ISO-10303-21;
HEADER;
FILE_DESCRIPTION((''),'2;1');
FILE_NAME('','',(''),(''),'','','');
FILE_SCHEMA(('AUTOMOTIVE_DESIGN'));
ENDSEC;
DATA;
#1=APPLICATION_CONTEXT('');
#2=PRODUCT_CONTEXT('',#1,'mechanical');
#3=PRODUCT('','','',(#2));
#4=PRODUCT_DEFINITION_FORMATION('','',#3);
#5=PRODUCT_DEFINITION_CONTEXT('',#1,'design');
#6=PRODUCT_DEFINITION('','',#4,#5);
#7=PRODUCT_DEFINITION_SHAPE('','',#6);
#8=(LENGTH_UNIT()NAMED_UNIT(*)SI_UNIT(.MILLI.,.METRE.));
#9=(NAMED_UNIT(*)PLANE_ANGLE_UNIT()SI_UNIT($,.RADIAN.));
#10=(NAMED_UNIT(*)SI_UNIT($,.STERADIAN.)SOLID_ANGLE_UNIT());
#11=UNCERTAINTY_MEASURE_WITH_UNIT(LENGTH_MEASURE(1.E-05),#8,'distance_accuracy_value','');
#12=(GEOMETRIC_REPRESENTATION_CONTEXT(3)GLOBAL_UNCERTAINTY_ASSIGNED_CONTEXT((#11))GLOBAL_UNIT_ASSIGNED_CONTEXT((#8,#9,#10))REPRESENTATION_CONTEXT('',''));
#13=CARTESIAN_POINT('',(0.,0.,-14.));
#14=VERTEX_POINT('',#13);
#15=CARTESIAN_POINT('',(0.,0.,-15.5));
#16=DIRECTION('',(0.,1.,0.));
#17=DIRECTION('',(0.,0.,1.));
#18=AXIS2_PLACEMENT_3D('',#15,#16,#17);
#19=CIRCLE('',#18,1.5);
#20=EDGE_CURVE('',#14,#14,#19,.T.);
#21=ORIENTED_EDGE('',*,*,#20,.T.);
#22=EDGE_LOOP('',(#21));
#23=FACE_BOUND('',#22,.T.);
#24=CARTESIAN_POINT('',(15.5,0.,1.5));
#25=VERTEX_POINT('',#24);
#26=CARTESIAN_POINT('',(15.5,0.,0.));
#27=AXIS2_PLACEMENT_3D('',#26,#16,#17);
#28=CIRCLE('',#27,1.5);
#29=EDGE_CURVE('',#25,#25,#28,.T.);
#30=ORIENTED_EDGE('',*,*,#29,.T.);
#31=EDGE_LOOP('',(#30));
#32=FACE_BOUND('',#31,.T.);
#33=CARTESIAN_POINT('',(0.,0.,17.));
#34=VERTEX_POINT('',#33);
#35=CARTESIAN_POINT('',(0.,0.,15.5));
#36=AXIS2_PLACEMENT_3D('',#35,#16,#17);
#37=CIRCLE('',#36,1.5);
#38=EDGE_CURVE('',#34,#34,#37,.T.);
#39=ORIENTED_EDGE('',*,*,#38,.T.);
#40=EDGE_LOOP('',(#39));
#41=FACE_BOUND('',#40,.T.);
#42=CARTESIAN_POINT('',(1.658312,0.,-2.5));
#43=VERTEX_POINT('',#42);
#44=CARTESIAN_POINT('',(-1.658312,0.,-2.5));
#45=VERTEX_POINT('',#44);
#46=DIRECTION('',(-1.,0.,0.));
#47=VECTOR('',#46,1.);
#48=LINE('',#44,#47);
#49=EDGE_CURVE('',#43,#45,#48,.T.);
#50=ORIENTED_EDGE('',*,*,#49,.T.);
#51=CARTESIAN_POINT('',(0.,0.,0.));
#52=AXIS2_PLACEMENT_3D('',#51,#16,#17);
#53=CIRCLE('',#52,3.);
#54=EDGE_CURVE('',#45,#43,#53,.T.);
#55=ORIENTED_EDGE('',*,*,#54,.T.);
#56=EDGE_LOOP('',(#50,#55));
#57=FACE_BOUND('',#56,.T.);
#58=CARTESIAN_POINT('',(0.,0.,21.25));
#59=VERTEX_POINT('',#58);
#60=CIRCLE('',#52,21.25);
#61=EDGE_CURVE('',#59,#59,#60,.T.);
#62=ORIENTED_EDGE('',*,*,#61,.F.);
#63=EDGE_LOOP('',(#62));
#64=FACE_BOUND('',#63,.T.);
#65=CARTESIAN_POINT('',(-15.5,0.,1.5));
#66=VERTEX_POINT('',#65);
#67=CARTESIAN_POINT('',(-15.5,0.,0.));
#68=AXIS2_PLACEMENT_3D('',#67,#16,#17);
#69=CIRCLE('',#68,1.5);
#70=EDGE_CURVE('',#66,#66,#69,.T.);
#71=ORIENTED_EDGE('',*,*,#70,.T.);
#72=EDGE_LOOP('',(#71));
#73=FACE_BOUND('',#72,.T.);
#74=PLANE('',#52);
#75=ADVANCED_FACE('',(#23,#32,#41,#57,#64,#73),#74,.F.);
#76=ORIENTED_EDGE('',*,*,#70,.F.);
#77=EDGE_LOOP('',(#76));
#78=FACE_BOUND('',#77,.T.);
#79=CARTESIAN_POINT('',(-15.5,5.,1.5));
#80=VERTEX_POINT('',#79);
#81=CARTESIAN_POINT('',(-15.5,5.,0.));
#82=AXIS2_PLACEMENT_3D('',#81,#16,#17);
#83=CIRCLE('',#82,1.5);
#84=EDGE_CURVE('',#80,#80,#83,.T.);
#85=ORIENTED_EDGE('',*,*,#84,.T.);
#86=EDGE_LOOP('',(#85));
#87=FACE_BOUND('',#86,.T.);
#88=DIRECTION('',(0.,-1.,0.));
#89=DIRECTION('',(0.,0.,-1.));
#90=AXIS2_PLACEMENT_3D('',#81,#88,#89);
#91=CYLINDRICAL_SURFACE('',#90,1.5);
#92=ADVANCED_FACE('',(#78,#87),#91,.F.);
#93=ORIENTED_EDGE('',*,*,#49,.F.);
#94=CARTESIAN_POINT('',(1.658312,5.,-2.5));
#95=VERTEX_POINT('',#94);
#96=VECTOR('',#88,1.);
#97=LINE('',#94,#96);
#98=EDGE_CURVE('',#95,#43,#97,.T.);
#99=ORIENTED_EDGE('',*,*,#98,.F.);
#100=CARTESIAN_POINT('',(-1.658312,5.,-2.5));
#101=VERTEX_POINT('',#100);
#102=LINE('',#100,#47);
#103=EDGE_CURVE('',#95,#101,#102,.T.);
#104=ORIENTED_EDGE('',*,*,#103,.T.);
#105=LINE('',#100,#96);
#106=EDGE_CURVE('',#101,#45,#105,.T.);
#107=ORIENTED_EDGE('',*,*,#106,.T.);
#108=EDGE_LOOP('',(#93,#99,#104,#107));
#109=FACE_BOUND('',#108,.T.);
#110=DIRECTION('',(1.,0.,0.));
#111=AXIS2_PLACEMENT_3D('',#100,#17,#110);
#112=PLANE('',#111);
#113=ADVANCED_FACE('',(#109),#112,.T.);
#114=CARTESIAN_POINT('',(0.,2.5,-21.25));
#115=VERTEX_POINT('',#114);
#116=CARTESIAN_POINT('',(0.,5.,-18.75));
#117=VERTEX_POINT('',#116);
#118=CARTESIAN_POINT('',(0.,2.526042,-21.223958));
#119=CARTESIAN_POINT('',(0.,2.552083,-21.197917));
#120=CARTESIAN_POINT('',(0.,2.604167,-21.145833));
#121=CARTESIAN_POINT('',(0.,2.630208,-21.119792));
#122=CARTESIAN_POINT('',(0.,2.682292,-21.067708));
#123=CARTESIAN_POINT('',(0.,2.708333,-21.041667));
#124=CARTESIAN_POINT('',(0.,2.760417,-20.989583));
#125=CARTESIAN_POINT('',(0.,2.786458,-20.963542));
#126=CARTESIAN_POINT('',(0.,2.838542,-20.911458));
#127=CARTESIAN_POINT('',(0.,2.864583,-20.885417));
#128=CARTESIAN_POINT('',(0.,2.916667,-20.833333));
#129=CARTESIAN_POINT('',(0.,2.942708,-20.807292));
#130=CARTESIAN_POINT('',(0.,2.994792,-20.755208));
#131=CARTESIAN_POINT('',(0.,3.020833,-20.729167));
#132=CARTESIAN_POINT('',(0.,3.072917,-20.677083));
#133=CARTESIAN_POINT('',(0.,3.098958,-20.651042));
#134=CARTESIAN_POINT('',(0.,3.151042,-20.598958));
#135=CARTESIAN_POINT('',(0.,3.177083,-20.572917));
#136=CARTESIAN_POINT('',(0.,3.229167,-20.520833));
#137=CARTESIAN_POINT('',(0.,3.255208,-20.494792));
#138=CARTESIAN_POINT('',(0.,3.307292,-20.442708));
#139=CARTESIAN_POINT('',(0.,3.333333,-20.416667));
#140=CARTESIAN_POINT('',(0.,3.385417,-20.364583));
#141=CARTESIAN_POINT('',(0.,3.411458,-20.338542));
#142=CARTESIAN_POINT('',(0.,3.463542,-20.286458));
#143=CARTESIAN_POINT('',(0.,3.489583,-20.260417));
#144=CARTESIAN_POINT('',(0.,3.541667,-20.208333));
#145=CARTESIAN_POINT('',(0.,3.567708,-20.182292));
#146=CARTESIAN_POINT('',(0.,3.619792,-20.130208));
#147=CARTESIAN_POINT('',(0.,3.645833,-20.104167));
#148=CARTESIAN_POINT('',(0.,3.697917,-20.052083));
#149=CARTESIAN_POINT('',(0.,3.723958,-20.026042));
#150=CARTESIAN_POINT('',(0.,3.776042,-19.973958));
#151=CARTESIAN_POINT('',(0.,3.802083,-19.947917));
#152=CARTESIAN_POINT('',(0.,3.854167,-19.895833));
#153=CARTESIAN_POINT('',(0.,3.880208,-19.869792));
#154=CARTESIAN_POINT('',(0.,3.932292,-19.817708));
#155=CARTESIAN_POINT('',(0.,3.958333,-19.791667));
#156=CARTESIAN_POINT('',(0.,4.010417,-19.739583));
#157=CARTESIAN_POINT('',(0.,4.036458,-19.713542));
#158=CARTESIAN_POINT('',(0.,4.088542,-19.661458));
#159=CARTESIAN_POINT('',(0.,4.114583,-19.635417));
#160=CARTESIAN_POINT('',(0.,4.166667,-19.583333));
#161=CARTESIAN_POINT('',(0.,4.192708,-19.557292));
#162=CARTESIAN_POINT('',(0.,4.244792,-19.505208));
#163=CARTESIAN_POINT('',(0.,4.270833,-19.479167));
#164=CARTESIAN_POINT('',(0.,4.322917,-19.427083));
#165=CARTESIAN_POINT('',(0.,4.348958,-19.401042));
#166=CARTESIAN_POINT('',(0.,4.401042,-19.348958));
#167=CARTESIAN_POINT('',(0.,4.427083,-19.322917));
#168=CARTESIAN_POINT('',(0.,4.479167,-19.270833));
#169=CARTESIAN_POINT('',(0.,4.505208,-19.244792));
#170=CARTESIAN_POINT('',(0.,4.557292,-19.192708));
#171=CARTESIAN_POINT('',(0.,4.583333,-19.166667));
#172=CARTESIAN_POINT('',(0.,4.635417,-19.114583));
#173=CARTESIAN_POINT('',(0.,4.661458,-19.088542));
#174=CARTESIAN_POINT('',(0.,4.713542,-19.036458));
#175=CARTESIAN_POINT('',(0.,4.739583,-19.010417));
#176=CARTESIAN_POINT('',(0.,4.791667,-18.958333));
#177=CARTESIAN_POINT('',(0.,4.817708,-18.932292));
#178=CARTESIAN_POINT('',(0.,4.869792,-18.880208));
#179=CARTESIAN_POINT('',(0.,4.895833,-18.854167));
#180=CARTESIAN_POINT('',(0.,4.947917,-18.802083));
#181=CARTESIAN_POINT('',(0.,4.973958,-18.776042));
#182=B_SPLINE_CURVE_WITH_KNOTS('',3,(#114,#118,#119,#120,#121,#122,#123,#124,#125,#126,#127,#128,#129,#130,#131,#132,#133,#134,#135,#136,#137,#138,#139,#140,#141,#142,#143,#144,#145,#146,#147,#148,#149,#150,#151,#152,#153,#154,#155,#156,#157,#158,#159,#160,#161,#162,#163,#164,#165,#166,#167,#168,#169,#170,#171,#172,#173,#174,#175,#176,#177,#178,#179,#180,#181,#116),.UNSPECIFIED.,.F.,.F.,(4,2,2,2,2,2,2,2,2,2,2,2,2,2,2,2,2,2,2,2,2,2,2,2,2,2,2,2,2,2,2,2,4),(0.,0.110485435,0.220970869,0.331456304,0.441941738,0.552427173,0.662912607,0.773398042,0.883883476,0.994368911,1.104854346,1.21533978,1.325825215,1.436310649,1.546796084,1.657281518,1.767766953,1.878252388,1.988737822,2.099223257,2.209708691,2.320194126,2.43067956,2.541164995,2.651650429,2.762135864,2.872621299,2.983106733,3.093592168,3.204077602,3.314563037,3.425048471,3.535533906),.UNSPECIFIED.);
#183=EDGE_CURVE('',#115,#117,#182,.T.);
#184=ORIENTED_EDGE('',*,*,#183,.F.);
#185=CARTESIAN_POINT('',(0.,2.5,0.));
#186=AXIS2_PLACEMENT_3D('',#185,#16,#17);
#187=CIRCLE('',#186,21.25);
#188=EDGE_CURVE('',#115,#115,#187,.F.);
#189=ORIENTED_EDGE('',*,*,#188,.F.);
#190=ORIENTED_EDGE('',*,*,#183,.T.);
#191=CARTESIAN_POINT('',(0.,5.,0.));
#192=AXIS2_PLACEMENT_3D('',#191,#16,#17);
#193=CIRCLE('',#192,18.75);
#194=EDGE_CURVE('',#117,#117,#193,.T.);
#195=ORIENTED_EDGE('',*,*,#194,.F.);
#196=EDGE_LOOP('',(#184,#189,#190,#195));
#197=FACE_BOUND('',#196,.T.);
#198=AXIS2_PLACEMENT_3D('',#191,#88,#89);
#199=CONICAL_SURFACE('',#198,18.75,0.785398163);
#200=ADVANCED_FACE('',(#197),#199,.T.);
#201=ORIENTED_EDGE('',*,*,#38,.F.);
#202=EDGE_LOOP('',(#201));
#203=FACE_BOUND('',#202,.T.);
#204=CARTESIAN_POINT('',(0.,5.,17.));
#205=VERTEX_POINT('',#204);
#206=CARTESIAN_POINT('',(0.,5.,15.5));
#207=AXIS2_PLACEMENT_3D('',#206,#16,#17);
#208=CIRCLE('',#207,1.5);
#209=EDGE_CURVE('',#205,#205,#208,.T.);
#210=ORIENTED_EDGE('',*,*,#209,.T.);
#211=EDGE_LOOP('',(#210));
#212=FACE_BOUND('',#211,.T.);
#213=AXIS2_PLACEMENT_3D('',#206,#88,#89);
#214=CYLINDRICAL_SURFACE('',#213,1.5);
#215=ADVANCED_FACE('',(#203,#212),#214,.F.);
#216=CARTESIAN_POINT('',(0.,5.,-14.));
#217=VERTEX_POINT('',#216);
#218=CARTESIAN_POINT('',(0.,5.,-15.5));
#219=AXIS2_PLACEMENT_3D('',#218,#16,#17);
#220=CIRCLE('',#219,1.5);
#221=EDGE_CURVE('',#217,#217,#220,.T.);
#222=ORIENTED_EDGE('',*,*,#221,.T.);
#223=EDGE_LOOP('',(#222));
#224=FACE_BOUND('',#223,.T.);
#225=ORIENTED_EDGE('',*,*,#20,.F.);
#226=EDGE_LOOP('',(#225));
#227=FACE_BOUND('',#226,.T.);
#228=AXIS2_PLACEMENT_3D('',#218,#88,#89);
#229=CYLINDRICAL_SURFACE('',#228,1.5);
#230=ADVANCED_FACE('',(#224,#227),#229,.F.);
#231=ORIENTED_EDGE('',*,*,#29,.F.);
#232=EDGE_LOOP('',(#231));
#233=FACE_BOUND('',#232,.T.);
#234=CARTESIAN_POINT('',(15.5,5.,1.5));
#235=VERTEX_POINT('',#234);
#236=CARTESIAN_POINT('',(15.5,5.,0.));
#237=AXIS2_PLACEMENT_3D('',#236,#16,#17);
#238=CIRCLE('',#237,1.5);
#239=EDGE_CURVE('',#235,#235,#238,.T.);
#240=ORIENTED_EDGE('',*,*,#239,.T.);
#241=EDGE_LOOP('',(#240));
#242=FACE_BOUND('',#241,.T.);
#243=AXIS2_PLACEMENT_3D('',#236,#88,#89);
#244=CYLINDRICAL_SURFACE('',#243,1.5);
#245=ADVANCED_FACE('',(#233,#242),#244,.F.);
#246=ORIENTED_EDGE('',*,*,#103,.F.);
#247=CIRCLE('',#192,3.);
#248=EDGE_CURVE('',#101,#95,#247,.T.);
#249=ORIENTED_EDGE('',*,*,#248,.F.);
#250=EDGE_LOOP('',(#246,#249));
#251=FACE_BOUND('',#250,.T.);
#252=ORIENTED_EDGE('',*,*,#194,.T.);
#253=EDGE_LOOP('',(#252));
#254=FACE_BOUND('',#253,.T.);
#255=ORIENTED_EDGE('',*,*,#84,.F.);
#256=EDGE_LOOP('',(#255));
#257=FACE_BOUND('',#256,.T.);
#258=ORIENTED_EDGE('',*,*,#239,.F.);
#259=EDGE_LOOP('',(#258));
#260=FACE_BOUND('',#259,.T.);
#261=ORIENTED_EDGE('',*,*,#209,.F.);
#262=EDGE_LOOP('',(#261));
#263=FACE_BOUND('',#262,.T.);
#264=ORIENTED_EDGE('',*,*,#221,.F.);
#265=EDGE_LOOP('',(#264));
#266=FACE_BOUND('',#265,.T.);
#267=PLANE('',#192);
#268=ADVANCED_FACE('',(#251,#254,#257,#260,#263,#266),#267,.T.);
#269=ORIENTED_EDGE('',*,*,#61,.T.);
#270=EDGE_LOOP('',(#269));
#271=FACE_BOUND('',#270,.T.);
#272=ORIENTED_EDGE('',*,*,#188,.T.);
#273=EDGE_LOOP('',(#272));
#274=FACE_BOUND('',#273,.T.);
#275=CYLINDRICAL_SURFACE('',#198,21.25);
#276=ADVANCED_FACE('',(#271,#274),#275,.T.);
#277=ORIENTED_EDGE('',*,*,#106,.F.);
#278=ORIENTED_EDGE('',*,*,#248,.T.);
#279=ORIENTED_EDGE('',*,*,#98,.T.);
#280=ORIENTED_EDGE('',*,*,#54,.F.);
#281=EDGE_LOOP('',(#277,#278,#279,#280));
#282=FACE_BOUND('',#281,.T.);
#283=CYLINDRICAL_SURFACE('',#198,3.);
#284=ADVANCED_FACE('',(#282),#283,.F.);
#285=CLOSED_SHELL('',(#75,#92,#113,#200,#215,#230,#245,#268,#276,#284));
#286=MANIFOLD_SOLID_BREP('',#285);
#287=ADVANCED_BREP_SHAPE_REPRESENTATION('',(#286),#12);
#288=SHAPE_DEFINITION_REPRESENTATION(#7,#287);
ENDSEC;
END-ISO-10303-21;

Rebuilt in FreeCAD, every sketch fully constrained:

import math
import FreeCAD as App
import Part
import Sketcher

V = App.Vector
Q = App.Units.Quantity


def edges_at(feature, points):
    """Names of the edges that pass closest to the given points."""
    edges = feature.Shape.Edges
    near = lambda p: min(range(len(edges)), key=lambda i: edges[i].distToShape(Part.Vertex(*p))[0])
    return sorted({f"Edge{near(p) + 1}" for p in points})

doc = App.newDocument("Part")
params = doc.addObject("Spreadsheet::Sheet", "Params")
for row, (alias, value) in enumerate([
    ("sketch1_diameter", "3 mm"),
    ("sketch1_radius", "3 mm"),
    ("sketch1_diameter2", "42.5 mm"),
    ("pad1_length", "5 mm"),
    ("chamfer_size", "2.5 mm"),
], start=1):
    params.set(f"A{row}", alias)
    params.set(f"B{row}", "=" + value)
    params.setAlias(f"B{row}", alias)

body = doc.addObject("PartDesign::Body", "Body")

sketch1 = doc.addObject("Sketcher::SketchObject", "Sketch")
body.addObject(sketch1)
sketch1.AttachmentSupport = (doc.XZ_Plane, [""])
sketch1.MapMode = "FlatFace"
sketch1.addGeometry(Part.Circle(V(0, 0, 0), V(0, 0, 1), 21.25), False)
sketch1.addGeometry(Part.Circle(V(0, -15.5, 0), V(0, 0, 1), 1.5), False)
sketch1.addGeometry(Part.Circle(V(-15.5, 0, 0), V(0, 0, 1), 1.5), False)
sketch1.addGeometry(Part.Circle(V(15.5, 0, 0), V(0, 0, 1), 1.5), False)
sketch1.addGeometry(Part.ArcOfCircle(Part.Circle(V(0, 0, 0), V(0, 0, 1), 3), math.radians(-56.44269), math.radians(236.44269)), False)
sketch1.addGeometry(Part.LineSegment(V(-1.658312, -2.5, 0), V(1.658312, -2.5, 0)), False)
sketch1.addGeometry(Part.Circle(V(0, 15.5, 0), V(0, 0, 1), 1.5), False)
sketch1.addConstraint(Sketcher.Constraint("Coincident", 4, 1, 5, 2))
sketch1.addConstraint(Sketcher.Constraint("Coincident", 5, 1, 4, 2))
sketch1.addConstraint(Sketcher.Constraint("Horizontal", 5))
sketch1.addConstraint(Sketcher.Constraint("Coincident", 0, 3, -1, 1))
sketch1.addConstraint(Sketcher.Constraint("Coincident", 4, 3, -1, 1))
sketch1.addConstraint(Sketcher.Constraint("Equal", 1, 2))
sketch1.addConstraint(Sketcher.Constraint("Equal", 2, 3))
sketch1.addConstraint(Sketcher.Constraint("Equal", 3, 6))
sketch1.addConstraint(Sketcher.Constraint("Symmetric", 2, 3, 3, 3, -1, 1))
sketch1.addConstraint(Sketcher.Constraint("Symmetric", 1, 3, 6, 3, -1, 1))
sketch1.addConstraint(Sketcher.Constraint("PointOnObject", 1, 3, -2))
sketch1.addConstraint(Sketcher.Constraint("PointOnObject", 2, 3, -1))
sketch1.addConstraint(Sketcher.Constraint("Diameter", 1, Q("3 mm")))
sketch1.addConstraint(Sketcher.Constraint("Radius", 4, Q("3 mm")))
sketch1.addConstraint(Sketcher.Constraint("Diameter", 0, Q("42.5 mm")))
sketch1.addConstraint(Sketcher.Constraint("DistanceX", 2, 3, 3, 3, Q("31 mm")))
sketch1.addConstraint(Sketcher.Constraint("DistanceY", 1, 3, 6, 3, Q("31 mm")))
sketch1.addConstraint(Sketcher.Constraint("DistanceY", 1, 3, 4, 1, Q("13 mm")))
sketch1.setExpression("Constraints[12]", "Params.sketch1_diameter")
sketch1.setExpression("Constraints[13]", "Params.sketch1_radius")
sketch1.setExpression("Constraints[14]", "Params.sketch1_diameter2")
pad1 = doc.addObject("PartDesign::Pad", "Pad")
body.addObject(pad1)
pad1.Profile = sketch1
pad1.setExpression("Length", "Params.pad1_length")
pad1.Reversed = True
doc.recompute()

chamfer = doc.addObject("PartDesign::Chamfer", "Chamfer")
body.addObject(chamfer)
chamfer.Base = (pad1, edges_at(pad1, [(0, 5, -21.25)]))
chamfer.setExpression("Size", "Params.chamfer_size")

doc.recompute()
